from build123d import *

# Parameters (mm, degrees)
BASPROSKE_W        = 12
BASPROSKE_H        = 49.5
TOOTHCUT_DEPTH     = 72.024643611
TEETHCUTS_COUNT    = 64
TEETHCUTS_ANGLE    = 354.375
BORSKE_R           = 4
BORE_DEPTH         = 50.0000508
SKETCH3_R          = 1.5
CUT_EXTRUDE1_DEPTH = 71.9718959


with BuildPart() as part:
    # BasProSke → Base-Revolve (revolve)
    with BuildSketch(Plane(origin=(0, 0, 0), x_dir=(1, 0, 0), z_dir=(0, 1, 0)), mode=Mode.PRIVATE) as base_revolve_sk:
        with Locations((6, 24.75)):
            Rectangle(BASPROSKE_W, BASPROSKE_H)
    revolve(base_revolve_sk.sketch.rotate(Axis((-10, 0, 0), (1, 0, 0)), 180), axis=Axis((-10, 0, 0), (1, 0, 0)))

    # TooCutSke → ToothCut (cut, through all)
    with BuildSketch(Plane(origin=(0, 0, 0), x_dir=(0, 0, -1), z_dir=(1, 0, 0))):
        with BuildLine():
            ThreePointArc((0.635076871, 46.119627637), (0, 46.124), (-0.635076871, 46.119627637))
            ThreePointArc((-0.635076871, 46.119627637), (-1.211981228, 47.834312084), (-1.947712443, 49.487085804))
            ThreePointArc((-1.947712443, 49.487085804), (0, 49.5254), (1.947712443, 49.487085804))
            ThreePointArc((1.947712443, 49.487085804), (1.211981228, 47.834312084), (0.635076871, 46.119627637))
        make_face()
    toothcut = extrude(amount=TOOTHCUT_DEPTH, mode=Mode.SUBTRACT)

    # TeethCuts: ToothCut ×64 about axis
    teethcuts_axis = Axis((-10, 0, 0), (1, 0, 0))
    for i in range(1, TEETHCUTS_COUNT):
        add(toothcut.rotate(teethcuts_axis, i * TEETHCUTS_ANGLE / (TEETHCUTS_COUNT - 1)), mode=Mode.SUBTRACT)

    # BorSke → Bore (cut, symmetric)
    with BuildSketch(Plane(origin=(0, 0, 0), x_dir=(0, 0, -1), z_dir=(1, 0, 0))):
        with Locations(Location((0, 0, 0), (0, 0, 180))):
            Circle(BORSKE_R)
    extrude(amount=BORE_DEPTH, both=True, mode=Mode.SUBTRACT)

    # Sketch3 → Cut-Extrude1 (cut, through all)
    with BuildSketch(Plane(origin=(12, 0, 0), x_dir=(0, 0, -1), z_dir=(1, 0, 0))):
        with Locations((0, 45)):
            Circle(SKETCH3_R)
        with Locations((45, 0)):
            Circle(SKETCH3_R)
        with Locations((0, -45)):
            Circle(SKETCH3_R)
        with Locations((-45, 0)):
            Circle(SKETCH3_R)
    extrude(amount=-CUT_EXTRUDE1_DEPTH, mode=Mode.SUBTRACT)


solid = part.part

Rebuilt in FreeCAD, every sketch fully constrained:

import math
import FreeCAD as App
import Part
import Sketcher
from FreeCAD import Vector

doc = App.newDocument("Part")
body = doc.addObject("PartDesign::Body", "Body")

sketch1 = body.newObject("Sketcher::SketchObject", "Sketch")
sketch1.AttachmentSupport = (doc.getObject("XZ_Plane"), [""])
sketch1.MapMode = "FlatFace"
sketch1.addGeometry([
    Part.LineSegment(Vector(0, -49.5, 0), Vector(0, 0, 0)),
    Part.LineSegment(Vector(0, 0, 0), Vector(12, 0, 0)),
    Part.LineSegment(Vector(12, 0, 0), Vector(12, -49.5, 0)),
    Part.LineSegment(Vector(12, -49.5, 0), Vector(0, -49.5, 0)),
], False)
sketch1.addConstraint([
    Sketcher.Constraint("Coincident", 0, 2, 1, 1),
    Sketcher.Constraint("Coincident", 1, 2, 2, 1),
    Sketcher.Constraint("Coincident", 2, 2, 3, 1),
    Sketcher.Constraint("Coincident", 3, 2, 0, 1),
    Sketcher.Constraint("Vertical", 0),
    Sketcher.Constraint("Horizontal", 1),
    Sketcher.Constraint("Vertical", 2),
    Sketcher.Constraint("Horizontal", 3),
    Sketcher.Constraint("Coincident", 0, 2, -1, 1),
    Sketcher.Constraint("DistanceX", 1, 1, 1, 2, 12.0),
    Sketcher.Constraint("DistanceY", 0, 1, 0, 2, 49.5),
])
revolution = body.newObject("PartDesign::Revolution", "Revolution")
revolution.Profile = sketch1
revolution.ReferenceAxis = (sketch1, ["H_Axis"])
revolution.Angle = 360

sketch2 = body.newObject("Sketcher::SketchObject", "Sketch001")
sketch2.AttachmentSupport = (doc.getObject("YZ_Plane"), [""])
sketch2.MapMode = "FlatFace"
sketch2.addGeometry([
    Part.ArcOfCircle(Part.Circle(Vector(-0.000001, 0, 0), Vector(0, 0, 1), 46.124001), math.radians(-0.788925), math.radians(0.788925)),
    Part.ArcOfCircle(Part.Circle(Vector(40.861187, -19.100959, 0), Vector(0, 0, 1), 19.2), math.radians(63.303426), math.radians(74.10489)),
    Part.ArcOfCircle(Part.Circle(Vector(0, 0, 0), Vector(0, 0, 1), 49.5254), math.radians(-2.253884), math.radians(2.253884)),
    Part.ArcOfCircle(Part.Circle(Vector(40.861187, 19.100959, 0), Vector(0, 0, 1), 19.2), math.radians(-74.10489), math.radians(-63.303426)),
], False)
sketch2.addConstraint([
    Sketcher.Constraint("Coincident", 0, 1, 1, 2),
    Sketcher.Constraint("Coincident", 1, 1, 2, 1),
    Sketcher.Constraint("Coincident", 2, 2, 3, 2),
    Sketcher.Constraint("Coincident", 3, 1, 0, 2),
    Sketcher.Constraint("Coincident", 0, 3, -1, 1),
    Sketcher.Constraint("Coincident", 2, 3, -1, 1),
    Sketcher.Constraint("Equal", 1, 3),
    Sketcher.Constraint("Symmetric", 1, 3, 3, 3, -1),
    Sketcher.Constraint("Radius", 1, 19.2),
    Sketcher.Constraint("Radius", 0, 46.124001),
    Sketcher.Constraint("Radius", 2, 49.5254),
    Sketcher.Constraint("DistanceX", 1, 3, 1, 1, 8.625899),
    Sketcher.Constraint("DistanceY", 1, 3, -1, 1, 19.100959),
])
pocket1 = body.newObject("PartDesign::Pocket", "Pocket")
pocket1.Profile = sketch2
pocket1.Type = "ThroughAll"
pocket1.Reversed = True
doc.recompute()

polarpattern = body.newObject("PartDesign::PolarPattern", "PolarPattern")
polarpattern.Originals = [pocket1]
polarpattern.Axis = (doc.getObject("X_Axis"), [""])
polarpattern.Angle = 360
polarpattern.Occurrences = 64
body.Tip = polarpattern

sketch3 = body.newObject("Sketcher::SketchObject", "Sketch002")
sketch3.AttachmentSupport = (doc.getObject("YZ_Plane"), [""])
sketch3.MapMode = "FlatFace"
sketch3.addGeometry(Part.Circle(Vector(0, 0, 0), Vector(0, 0, 1), 4), False)
sketch3.addConstraint([
    Sketcher.Constraint("Coincident", 0, 3, -1, 1),
    Sketcher.Constraint("Diameter", 0, 8.0),
])
pocket2 = body.newObject("PartDesign::Pocket", "Pocket001")
pocket2.Profile = sketch3
pocket2.Length = 100.000102
pocket2.Midplane = True

sketch4 = body.newObject("Sketcher::SketchObject", "Sketch003")
sketch4.AttachmentSupport = (doc.getObject("YZ_Plane"), [""])
sketch4.MapMode = "FlatFace"
sketch4.AttachmentOffset = App.Placement(Vector(0, 0, 12), App.Rotation())
sketch4.addGeometry([
    Part.Circle(Vector(45, 0, 0), Vector(0, 0, 1), 1.5),
    Part.Circle(Vector(0, -45, 0), Vector(0, 0, 1), 1.5),
    Part.Circle(Vector(-45, 0, 0), Vector(0, 0, 1), 1.5),
    Part.Circle(Vector(0, 45, 0), Vector(0, 0, 1), 1.5),
], False)
sketch4.addConstraint([
    Sketcher.Constraint("Equal", 0, 1),
    Sketcher.Constraint("Equal", 1, 2),
    Sketcher.Constraint("Equal", 2, 3),
    Sketcher.Constraint("Symmetric", 0, 3, 2, 3, -1, 1),
    Sketcher.Constraint("Symmetric", 1, 3, 3, 3, -1, 1),
    Sketcher.Constraint("PointOnObject", 0, 3, -1),
    Sketcher.Constraint("PointOnObject", 1, 3, -2),
    Sketcher.Constraint("Diameter", 0, 3.0),
    Sketcher.Constraint("DistanceX", -1, 1, 0, 3, 45.0),
    Sketcher.Constraint("DistanceY", 1, 3, -1, 1, 45.0),
])
pocket3 = body.newObject("PartDesign::Pocket", "Pocket002")
pocket3.Profile = sketch4
pocket3.Type = "ThroughAll"

doc.recompute()
